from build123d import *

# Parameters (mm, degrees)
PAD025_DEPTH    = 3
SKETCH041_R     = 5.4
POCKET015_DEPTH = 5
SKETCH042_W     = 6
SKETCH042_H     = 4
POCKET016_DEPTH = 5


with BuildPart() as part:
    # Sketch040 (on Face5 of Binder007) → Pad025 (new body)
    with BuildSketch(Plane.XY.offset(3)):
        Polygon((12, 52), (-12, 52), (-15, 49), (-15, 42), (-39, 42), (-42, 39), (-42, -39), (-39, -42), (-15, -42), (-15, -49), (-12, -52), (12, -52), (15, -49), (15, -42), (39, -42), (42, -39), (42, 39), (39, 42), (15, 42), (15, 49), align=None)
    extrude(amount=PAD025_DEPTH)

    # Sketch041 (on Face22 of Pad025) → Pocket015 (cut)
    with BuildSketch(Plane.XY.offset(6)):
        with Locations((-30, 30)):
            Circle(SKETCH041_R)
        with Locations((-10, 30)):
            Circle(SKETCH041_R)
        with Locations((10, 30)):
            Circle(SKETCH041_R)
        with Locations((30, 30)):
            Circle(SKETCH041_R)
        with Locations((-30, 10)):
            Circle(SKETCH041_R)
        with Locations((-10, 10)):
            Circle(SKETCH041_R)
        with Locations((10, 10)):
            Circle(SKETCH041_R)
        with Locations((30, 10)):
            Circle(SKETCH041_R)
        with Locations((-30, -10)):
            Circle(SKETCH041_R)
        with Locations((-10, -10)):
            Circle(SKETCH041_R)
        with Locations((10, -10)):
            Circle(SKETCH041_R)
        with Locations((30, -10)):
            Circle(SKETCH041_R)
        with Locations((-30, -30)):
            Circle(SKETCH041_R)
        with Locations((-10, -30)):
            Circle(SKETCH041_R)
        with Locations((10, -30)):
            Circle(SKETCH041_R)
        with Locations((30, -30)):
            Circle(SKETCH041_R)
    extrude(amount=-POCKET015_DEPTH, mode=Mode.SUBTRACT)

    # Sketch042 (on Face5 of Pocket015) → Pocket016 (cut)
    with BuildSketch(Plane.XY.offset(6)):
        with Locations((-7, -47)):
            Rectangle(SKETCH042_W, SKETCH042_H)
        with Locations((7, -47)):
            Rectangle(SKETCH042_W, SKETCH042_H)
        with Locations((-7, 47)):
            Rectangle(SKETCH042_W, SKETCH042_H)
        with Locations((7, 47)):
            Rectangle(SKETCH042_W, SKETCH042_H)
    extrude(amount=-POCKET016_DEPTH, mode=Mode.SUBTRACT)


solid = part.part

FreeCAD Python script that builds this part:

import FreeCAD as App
import Part
import Sketcher
Q = App.Units.Quantity

doc = App.newDocument("Part")
params = doc.addObject("Spreadsheet::Sheet", "Params")
for row, (alias, value) in enumerate([
    ("sketch1_width", "24 mm"),
    ("sketch1_height", "7 mm"),
    ("sketch1_height2", "78 mm"),
    ("pad1_length", "3 mm"),
    ("sketch2_diameter", "10.8 mm"),
    ("pocket1_length", "5 mm"),
    ("sketch3_width", "6 mm"),
    ("sketch3_height", "4 mm"),
    ("pocket2_length", "5 mm"),
], start=1):
    params.set(f"A{row}", alias)
    params.set(f"B{row}", "=" + value)
    params.setAlias(f"B{row}", alias)

body = doc.addObject("PartDesign::Body", "Body")

sketch1 = body.newObject("Sketcher::SketchObject", "Sketch")
sketch1.AttachmentSupport = (doc.getObject("XY_Plane"), [""])
sketch1.MapMode = "FlatFace"
sketch1.AttachmentOffset = App.Placement(App.Vector(0, 0, 3), App.Rotation())
sketch1.addGeometry([
    Part.LineSegment(App.Vector(12, 52, 0), App.Vector(-12, 52, 0)),
    Part.LineSegment(App.Vector(-12, 52, 0), App.Vector(-15, 49, 0)),
    Part.LineSegment(App.Vector(-15, 49, 0), App.Vector(-15, 42, 0)),
    Part.LineSegment(App.Vector(-15, 42, 0), App.Vector(-39, 42, 0)),
    Part.LineSegment(App.Vector(-39, 42, 0), App.Vector(-42, 39, 0)),
    Part.LineSegment(App.Vector(-42, 39, 0), App.Vector(-42, -39, 0)),
    Part.LineSegment(App.Vector(-42, -39, 0), App.Vector(-39, -42, 0)),
    Part.LineSegment(App.Vector(-39, -42, 0), App.Vector(-15, -42, 0)),
    Part.LineSegment(App.Vector(-15, -42, 0), App.Vector(-15, -49, 0)),
    Part.LineSegment(App.Vector(-15, -49, 0), App.Vector(-12, -52, 0)),
    Part.LineSegment(App.Vector(-12, -52, 0), App.Vector(12, -52, 0)),
    Part.LineSegment(App.Vector(12, -52, 0), App.Vector(15, -49, 0)),
    Part.LineSegment(App.Vector(15, -49, 0), App.Vector(15, -42, 0)),
    Part.LineSegment(App.Vector(15, -42, 0), App.Vector(39, -42, 0)),
    Part.LineSegment(App.Vector(39, -42, 0), App.Vector(42, -39, 0)),
    Part.LineSegment(App.Vector(42, -39, 0), App.Vector(42, 39, 0)),
    Part.LineSegment(App.Vector(42, 39, 0), App.Vector(39, 42, 0)),
    Part.LineSegment(App.Vector(39, 42, 0), App.Vector(15, 42, 0)),
    Part.LineSegment(App.Vector(15, 42, 0), App.Vector(15, 49, 0)),
    Part.LineSegment(App.Vector(15, 49, 0), App.Vector(12, 52, 0)),
], False)
sketch1.addConstraint([
    Sketcher.Constraint("Coincident", 0, 2, 1, 1),
    Sketcher.Constraint("Coincident", 1, 2, 2, 1),
    Sketcher.Constraint("Coincident", 2, 2, 3, 1),
    Sketcher.Constraint("Coincident", 3, 2, 4, 1),
    Sketcher.Constraint("Coincident", 4, 2, 5, 1),
    Sketcher.Constraint("Coincident", 5, 2, 6, 1),
    Sketcher.Constraint("Coincident", 6, 2, 7, 1),
    Sketcher.Constraint("Coincident", 7, 2, 8, 1),
    Sketcher.Constraint("Coincident", 8, 2, 9, 1),
    Sketcher.Constraint("Coincident", 9, 2, 10, 1),
    Sketcher.Constraint("Coincident", 10, 2, 11, 1),
    Sketcher.Constraint("Coincident", 11, 2, 12, 1),
    Sketcher.Constraint("Coincident", 12, 2, 13, 1),
    Sketcher.Constraint("Coincident", 13, 2, 14, 1),
    Sketcher.Constraint("Coincident", 14, 2, 15, 1),
    Sketcher.Constraint("Coincident", 15, 2, 16, 1),
    Sketcher.Constraint("Coincident", 16, 2, 17, 1),
    Sketcher.Constraint("Coincident", 17, 2, 18, 1),
    Sketcher.Constraint("Coincident", 18, 2, 19, 1),
    Sketcher.Constraint("Coincident", 19, 2, 0, 1),
    Sketcher.Constraint("Horizontal", 0),
    Sketcher.Constraint("Vertical", 2),
    Sketcher.Constraint("Horizontal", 3),
    Sketcher.Constraint("Vertical", 5),
    Sketcher.Constraint("Horizontal", 7),
    Sketcher.Constraint("Vertical", 8),
    Sketcher.Constraint("Horizontal", 10),
    Sketcher.Constraint("Vertical", 12),
    Sketcher.Constraint("Horizontal", 13),
    Sketcher.Constraint("Vertical", 15),
    Sketcher.Constraint("Horizontal", 17),
    Sketcher.Constraint("Vertical", 18),
    Sketcher.Constraint("Symmetric", 0, 2, 10, 2, -1, 1),
    Sketcher.Constraint("Symmetric", 1, 2, 11, 2, -1, 1),
    Sketcher.Constraint("Symmetric", 3, 2, 13, 2, -1, 1),
    Sketcher.Constraint("Symmetric", 4, 2, 14, 2, -1, 1),
    Sketcher.Constraint("Symmetric", 6, 2, 16, 2, -1, 1),
    Sketcher.Constraint("Symmetric", 8, 2, 18, 2, -1, 1),
    Sketcher.Constraint("Symmetric", 8, 2, 11, 2, -2),
    Sketcher.Constraint("Symmetric", 6, 2, 13, 2, -2),
    Sketcher.Constraint("Parallel", 1, 4),
    Sketcher.Constraint("Perpendicular", 4, 6),
    Sketcher.Constraint("Parallel", 6, 9),
    Sketcher.Constraint("Perpendicular", 14, 16),
    Sketcher.Constraint("Parallel", 16, 19),
    Sketcher.Constraint("Horizontal", 5, 2, 14, 2),
    Sketcher.Constraint("Equal", 0, 3),
    Sketcher.Constraint("Equal", 1, 4),
    Sketcher.Constraint("DistanceX", 0, 2, 0, 1, Q("24 mm")),
    Sketcher.Constraint("DistanceY", 2, 2, 2, 1, Q("7 mm")),
    Sketcher.Constraint("DistanceY", 5, 2, 5, 1, Q("78 mm")),
    Sketcher.Constraint("DistanceY", -1, 1, 0, 2, Q("52 mm")),
])
sketch1.setExpression("Constraints[48]", "Params.sketch1_width")
sketch1.setExpression("Constraints[49]", "Params.sketch1_height")
sketch1.setExpression("Constraints[50]", "Params.sketch1_height2")
pad1 = body.newObject("PartDesign::Pad", "Pad")
pad1.Profile = sketch1
pad1.setExpression("Length", "Params.pad1_length")

sketch2 = body.newObject("Sketcher::SketchObject", "Sketch001")
sketch2.AttachmentSupport = (doc.getObject("XY_Plane"), [""])
sketch2.MapMode = "FlatFace"
sketch2.AttachmentOffset = App.Placement(App.Vector(0, 0, 6), App.Rotation())
sketch2.addGeometry([
    Part.Circle(App.Vector(-30, 30, 0), App.Vector(0, 0, 1), 5),
    Part.Circle(App.Vector(-10, 30, 0), App.Vector(0, 0, 1), 5),
    Part.Circle(App.Vector(10, 30, 0), App.Vector(0, 0, 1), 5),
    Part.Circle(App.Vector(30, 30, 0), App.Vector(0, 0, 1), 5),
    Part.Circle(App.Vector(-30, 10, 0), App.Vector(0, 0, 1), 5),
    Part.Circle(App.Vector(-10, 10, 0), App.Vector(0, 0, 1), 5),
    Part.Circle(App.Vector(10, 10, 0), App.Vector(0, 0, 1), 5),
    Part.Circle(App.Vector(30, 10, 0), App.Vector(0, 0, 1), 5),
    Part.Circle(App.Vector(-30, -10, 0), App.Vector(0, 0, 1), 5),
    Part.Circle(App.Vector(-10, -10, 0), App.Vector(0, 0, 1), 5),
    Part.Circle(App.Vector(10, -10, 0), App.Vector(0, 0, 1), 5),
    Part.Circle(App.Vector(30, -10, 0), App.Vector(0, 0, 1), 5),
    Part.Circle(App.Vector(-30, -30, 0), App.Vector(0, 0, 1), 5),
    Part.Circle(App.Vector(-10, -30, 0), App.Vector(0, 0, 1), 5),
    Part.Circle(App.Vector(10, -30, 0), App.Vector(0, 0, 1), 5),
    Part.Circle(App.Vector(30, -30, 0), App.Vector(0, 0, 1), 5),
], False)
sketch2.addConstraint([
    Sketcher.Constraint("Equal", 0, 1),
    Sketcher.Constraint("Equal", 1, 2),
    Sketcher.Constraint("Equal", 2, 3),
    Sketcher.Constraint("Equal", 3, 4),
    Sketcher.Constraint("Equal", 4, 5),
    Sketcher.Constraint("Equal", 5, 6),
    Sketcher.Constraint("Equal", 6, 7),
    Sketcher.Constraint("Equal", 7, 8),
    Sketcher.Constraint("Equal", 8, 9),
    Sketcher.Constraint("Equal", 9, 10),
    Sketcher.Constraint("Equal", 10, 11),
    Sketcher.Constraint("Equal", 11, 12),
    Sketcher.Constraint("Equal", 12, 13),
    Sketcher.Constraint("Equal", 13, 14),
    Sketcher.Constraint("Equal", 14, 15),
    Sketcher.Constraint("Symmetric", 7, 3, 8, 3, -1, 1),
    Sketcher.Constraint("Symmetric", 6, 3, 9, 3, -1, 1),
    Sketcher.Constraint("Symmetric", 5, 3, 10, 3, -1, 1),
    Sketcher.Constraint("Symmetric", 4, 3, 11, 3, -1, 1),
    Sketcher.Constraint("Symmetric", 3, 3, 12, 3, -1, 1),
    Sketcher.Constraint("Symmetric", 2, 3, 13, 3, -1, 1),
    Sketcher.Constraint("Symmetric", 1, 3, 14, 3, -1, 1),
    Sketcher.Constraint("Symmetric", 0, 3, 15, 3, -1, 1),
    Sketcher.Constraint("Symmetric", 1, 3, 2, 3, -2),
    Sketcher.Constraint("Symmetric", 0, 3, 3, 3, -2),
    Sketcher.Constraint("Symmetric", 5, 3, 6, 3, -2),
    Sketcher.Constraint("Symmetric", 4, 3, 7, 3, -2),
    Sketcher.Constraint("Horizontal", 0, 3, 1, 3),
    Sketcher.Constraint("Horizontal", 4, 3, 5, 3),
    Sketcher.Constraint("Vertical", 0, 3, 4, 3),
    Sketcher.Constraint("Vertical", 1, 3, 5, 3),
    Sketcher.Constraint("Diameter", 0, Q("10.8 mm")),
    Sketcher.Constraint("DistanceX", 0, 3, -1, 1, Q("30 mm")),
    Sketcher.Constraint("DistanceY", -1, 1, 0, 3, Q("30 mm")),
    Sketcher.Constraint("DistanceX", 1, 3, -1, 1, Q("10 mm")),
    Sketcher.Constraint("DistanceY", -1, 1, 4, 3, Q("10 mm")),
])
sketch2.setExpression("Constraints[31]", "Params.sketch2_diameter")
pocket1 = body.newObject("PartDesign::Pocket", "Pocket")
pocket1.Profile = sketch2
pocket1.setExpression("Length", "Params.pocket1_length")

sketch3 = body.newObject("Sketcher::SketchObject", "Sketch002")
sketch3.AttachmentSupport = (doc.getObject("XY_Plane"), [""])
sketch3.MapMode = "FlatFace"
sketch3.AttachmentOffset = App.Placement(App.Vector(0, 0, 6), App.Rotation())
sketch3.addGeometry([
    Part.LineSegment(App.Vector(-10, -45, 0), App.Vector(-10, -49, 0)),
    Part.LineSegment(App.Vector(-10, -49, 0), App.Vector(-4, -49, 0)),
    Part.LineSegment(App.Vector(-4, -49, 0), App.Vector(-4, -45, 0)),
    Part.LineSegment(App.Vector(-4, -45, 0), App.Vector(-10, -45, 0)),
    Part.LineSegment(App.Vector(4, -45, 0), App.Vector(4, -49, 0)),
    Part.LineSegment(App.Vector(4, -49, 0), App.Vector(10, -49, 0)),
    Part.LineSegment(App.Vector(10, -49, 0), App.Vector(10, -45, 0)),
    Part.LineSegment(App.Vector(10, -45, 0), App.Vector(4, -45, 0)),
    Part.LineSegment(App.Vector(-10, 49, 0), App.Vector(-10, 45, 0)),
    Part.LineSegment(App.Vector(-10, 45, 0), App.Vector(-4, 45, 0)),
    Part.LineSegment(App.Vector(-4, 45, 0), App.Vector(-4, 49, 0)),
    Part.LineSegment(App.Vector(-4, 49, 0), App.Vector(-10, 49, 0)),
    Part.LineSegment(App.Vector(4, 49, 0), App.Vector(4, 45, 0)),
    Part.LineSegment(App.Vector(4, 45, 0), App.Vector(10, 45, 0)),
    Part.LineSegment(App.Vector(10, 45, 0), App.Vector(10, 49, 0)),
    Part.LineSegment(App.Vector(10, 49, 0), App.Vector(4, 49, 0)),
], False)
sketch3.addConstraint([
    Sketcher.Constraint("Coincident", 0, 2, 1, 1),
    Sketcher.Constraint("Coincident", 1, 2, 2, 1),
    Sketcher.Constraint("Coincident", 2, 2, 3, 1),
    Sketcher.Constraint("Coincident", 3, 2, 0, 1),
    Sketcher.Constraint("Coincident", 4, 2, 5, 1),
    Sketcher.Constraint("Coincident", 5, 2, 6, 1),
    Sketcher.Constraint("Coincident", 6, 2, 7, 1),
    Sketcher.Constraint("Coincident", 7, 2, 4, 1),
    Sketcher.Constraint("Coincident", 8, 2, 9, 1),
    Sketcher.Constraint("Coincident", 9, 2, 10, 1),
    Sketcher.Constraint("Coincident", 10, 2, 11, 1),
    Sketcher.Constraint("Coincident", 11, 2, 8, 1),
    Sketcher.Constraint("Coincident", 12, 2, 13, 1),
    Sketcher.Constraint("Coincident", 13, 2, 14, 1),
    Sketcher.Constraint("Coincident", 14, 2, 15, 1),
    Sketcher.Constraint("Coincident", 15, 2, 12, 1),
    Sketcher.Constraint("Vertical", 0),
    Sketcher.Constraint("Horizontal", 1),
    Sketcher.Constraint("Vertical", 2),
    Sketcher.Constraint("Horizontal", 3),
    Sketcher.Constraint("Vertical", 4),
    Sketcher.Constraint("Horizontal", 5),
    Sketcher.Constraint("Vertical", 6),
    Sketcher.Constraint("Horizontal", 7),
    Sketcher.Constraint("Vertical", 8),
    Sketcher.Constraint("Horizontal", 9),
    Sketcher.Constraint("Vertical", 10),
    Sketcher.Constraint("Horizontal", 11),
    Sketcher.Constraint("Vertical", 12),
    Sketcher.Constraint("Horizontal", 13),
    Sketcher.Constraint("Vertical", 14),
    Sketcher.Constraint("Horizontal", 15),
    Sketcher.Constraint("Symmetric", 6, 2, 8, 2, -1, 1),
    Sketcher.Constraint("Symmetric", 4, 2, 10, 2, -1, 1),
    Sketcher.Constraint("Symmetric", 2, 2, 12, 2, -1, 1),
    Sketcher.Constraint("Symmetric", 0, 2, 14, 2, -1, 1),
    Sketcher.Constraint("Symmetric", 1, 2, 4, 2, -2),
    Sketcher.Constraint("Symmetric", 3, 2, 6, 2, -2),
    Sketcher.Constraint("DistanceX", 1, 1, 1, 2, Q("6 mm")),
    Sketcher.Constraint("DistanceY", 0, 2, 0, 1, Q("4 mm")),
    Sketcher.Constraint("DistanceX", 0, 2, -1, 1, Q("10 mm")),
    Sketcher.Constraint("DistanceY", 0, 2, -1, 1, Q("49 mm")),
])
sketch3.setExpression("Constraints[38]", "Params.sketch3_width")
sketch3.setExpression("Constraints[39]", "Params.sketch3_height")
pocket2 = body.newObject("PartDesign::Pocket", "Pocket001")
pocket2.Profile = sketch3
pocket2.setExpression("Length", "Params.pocket2_length")

doc.recompute()
